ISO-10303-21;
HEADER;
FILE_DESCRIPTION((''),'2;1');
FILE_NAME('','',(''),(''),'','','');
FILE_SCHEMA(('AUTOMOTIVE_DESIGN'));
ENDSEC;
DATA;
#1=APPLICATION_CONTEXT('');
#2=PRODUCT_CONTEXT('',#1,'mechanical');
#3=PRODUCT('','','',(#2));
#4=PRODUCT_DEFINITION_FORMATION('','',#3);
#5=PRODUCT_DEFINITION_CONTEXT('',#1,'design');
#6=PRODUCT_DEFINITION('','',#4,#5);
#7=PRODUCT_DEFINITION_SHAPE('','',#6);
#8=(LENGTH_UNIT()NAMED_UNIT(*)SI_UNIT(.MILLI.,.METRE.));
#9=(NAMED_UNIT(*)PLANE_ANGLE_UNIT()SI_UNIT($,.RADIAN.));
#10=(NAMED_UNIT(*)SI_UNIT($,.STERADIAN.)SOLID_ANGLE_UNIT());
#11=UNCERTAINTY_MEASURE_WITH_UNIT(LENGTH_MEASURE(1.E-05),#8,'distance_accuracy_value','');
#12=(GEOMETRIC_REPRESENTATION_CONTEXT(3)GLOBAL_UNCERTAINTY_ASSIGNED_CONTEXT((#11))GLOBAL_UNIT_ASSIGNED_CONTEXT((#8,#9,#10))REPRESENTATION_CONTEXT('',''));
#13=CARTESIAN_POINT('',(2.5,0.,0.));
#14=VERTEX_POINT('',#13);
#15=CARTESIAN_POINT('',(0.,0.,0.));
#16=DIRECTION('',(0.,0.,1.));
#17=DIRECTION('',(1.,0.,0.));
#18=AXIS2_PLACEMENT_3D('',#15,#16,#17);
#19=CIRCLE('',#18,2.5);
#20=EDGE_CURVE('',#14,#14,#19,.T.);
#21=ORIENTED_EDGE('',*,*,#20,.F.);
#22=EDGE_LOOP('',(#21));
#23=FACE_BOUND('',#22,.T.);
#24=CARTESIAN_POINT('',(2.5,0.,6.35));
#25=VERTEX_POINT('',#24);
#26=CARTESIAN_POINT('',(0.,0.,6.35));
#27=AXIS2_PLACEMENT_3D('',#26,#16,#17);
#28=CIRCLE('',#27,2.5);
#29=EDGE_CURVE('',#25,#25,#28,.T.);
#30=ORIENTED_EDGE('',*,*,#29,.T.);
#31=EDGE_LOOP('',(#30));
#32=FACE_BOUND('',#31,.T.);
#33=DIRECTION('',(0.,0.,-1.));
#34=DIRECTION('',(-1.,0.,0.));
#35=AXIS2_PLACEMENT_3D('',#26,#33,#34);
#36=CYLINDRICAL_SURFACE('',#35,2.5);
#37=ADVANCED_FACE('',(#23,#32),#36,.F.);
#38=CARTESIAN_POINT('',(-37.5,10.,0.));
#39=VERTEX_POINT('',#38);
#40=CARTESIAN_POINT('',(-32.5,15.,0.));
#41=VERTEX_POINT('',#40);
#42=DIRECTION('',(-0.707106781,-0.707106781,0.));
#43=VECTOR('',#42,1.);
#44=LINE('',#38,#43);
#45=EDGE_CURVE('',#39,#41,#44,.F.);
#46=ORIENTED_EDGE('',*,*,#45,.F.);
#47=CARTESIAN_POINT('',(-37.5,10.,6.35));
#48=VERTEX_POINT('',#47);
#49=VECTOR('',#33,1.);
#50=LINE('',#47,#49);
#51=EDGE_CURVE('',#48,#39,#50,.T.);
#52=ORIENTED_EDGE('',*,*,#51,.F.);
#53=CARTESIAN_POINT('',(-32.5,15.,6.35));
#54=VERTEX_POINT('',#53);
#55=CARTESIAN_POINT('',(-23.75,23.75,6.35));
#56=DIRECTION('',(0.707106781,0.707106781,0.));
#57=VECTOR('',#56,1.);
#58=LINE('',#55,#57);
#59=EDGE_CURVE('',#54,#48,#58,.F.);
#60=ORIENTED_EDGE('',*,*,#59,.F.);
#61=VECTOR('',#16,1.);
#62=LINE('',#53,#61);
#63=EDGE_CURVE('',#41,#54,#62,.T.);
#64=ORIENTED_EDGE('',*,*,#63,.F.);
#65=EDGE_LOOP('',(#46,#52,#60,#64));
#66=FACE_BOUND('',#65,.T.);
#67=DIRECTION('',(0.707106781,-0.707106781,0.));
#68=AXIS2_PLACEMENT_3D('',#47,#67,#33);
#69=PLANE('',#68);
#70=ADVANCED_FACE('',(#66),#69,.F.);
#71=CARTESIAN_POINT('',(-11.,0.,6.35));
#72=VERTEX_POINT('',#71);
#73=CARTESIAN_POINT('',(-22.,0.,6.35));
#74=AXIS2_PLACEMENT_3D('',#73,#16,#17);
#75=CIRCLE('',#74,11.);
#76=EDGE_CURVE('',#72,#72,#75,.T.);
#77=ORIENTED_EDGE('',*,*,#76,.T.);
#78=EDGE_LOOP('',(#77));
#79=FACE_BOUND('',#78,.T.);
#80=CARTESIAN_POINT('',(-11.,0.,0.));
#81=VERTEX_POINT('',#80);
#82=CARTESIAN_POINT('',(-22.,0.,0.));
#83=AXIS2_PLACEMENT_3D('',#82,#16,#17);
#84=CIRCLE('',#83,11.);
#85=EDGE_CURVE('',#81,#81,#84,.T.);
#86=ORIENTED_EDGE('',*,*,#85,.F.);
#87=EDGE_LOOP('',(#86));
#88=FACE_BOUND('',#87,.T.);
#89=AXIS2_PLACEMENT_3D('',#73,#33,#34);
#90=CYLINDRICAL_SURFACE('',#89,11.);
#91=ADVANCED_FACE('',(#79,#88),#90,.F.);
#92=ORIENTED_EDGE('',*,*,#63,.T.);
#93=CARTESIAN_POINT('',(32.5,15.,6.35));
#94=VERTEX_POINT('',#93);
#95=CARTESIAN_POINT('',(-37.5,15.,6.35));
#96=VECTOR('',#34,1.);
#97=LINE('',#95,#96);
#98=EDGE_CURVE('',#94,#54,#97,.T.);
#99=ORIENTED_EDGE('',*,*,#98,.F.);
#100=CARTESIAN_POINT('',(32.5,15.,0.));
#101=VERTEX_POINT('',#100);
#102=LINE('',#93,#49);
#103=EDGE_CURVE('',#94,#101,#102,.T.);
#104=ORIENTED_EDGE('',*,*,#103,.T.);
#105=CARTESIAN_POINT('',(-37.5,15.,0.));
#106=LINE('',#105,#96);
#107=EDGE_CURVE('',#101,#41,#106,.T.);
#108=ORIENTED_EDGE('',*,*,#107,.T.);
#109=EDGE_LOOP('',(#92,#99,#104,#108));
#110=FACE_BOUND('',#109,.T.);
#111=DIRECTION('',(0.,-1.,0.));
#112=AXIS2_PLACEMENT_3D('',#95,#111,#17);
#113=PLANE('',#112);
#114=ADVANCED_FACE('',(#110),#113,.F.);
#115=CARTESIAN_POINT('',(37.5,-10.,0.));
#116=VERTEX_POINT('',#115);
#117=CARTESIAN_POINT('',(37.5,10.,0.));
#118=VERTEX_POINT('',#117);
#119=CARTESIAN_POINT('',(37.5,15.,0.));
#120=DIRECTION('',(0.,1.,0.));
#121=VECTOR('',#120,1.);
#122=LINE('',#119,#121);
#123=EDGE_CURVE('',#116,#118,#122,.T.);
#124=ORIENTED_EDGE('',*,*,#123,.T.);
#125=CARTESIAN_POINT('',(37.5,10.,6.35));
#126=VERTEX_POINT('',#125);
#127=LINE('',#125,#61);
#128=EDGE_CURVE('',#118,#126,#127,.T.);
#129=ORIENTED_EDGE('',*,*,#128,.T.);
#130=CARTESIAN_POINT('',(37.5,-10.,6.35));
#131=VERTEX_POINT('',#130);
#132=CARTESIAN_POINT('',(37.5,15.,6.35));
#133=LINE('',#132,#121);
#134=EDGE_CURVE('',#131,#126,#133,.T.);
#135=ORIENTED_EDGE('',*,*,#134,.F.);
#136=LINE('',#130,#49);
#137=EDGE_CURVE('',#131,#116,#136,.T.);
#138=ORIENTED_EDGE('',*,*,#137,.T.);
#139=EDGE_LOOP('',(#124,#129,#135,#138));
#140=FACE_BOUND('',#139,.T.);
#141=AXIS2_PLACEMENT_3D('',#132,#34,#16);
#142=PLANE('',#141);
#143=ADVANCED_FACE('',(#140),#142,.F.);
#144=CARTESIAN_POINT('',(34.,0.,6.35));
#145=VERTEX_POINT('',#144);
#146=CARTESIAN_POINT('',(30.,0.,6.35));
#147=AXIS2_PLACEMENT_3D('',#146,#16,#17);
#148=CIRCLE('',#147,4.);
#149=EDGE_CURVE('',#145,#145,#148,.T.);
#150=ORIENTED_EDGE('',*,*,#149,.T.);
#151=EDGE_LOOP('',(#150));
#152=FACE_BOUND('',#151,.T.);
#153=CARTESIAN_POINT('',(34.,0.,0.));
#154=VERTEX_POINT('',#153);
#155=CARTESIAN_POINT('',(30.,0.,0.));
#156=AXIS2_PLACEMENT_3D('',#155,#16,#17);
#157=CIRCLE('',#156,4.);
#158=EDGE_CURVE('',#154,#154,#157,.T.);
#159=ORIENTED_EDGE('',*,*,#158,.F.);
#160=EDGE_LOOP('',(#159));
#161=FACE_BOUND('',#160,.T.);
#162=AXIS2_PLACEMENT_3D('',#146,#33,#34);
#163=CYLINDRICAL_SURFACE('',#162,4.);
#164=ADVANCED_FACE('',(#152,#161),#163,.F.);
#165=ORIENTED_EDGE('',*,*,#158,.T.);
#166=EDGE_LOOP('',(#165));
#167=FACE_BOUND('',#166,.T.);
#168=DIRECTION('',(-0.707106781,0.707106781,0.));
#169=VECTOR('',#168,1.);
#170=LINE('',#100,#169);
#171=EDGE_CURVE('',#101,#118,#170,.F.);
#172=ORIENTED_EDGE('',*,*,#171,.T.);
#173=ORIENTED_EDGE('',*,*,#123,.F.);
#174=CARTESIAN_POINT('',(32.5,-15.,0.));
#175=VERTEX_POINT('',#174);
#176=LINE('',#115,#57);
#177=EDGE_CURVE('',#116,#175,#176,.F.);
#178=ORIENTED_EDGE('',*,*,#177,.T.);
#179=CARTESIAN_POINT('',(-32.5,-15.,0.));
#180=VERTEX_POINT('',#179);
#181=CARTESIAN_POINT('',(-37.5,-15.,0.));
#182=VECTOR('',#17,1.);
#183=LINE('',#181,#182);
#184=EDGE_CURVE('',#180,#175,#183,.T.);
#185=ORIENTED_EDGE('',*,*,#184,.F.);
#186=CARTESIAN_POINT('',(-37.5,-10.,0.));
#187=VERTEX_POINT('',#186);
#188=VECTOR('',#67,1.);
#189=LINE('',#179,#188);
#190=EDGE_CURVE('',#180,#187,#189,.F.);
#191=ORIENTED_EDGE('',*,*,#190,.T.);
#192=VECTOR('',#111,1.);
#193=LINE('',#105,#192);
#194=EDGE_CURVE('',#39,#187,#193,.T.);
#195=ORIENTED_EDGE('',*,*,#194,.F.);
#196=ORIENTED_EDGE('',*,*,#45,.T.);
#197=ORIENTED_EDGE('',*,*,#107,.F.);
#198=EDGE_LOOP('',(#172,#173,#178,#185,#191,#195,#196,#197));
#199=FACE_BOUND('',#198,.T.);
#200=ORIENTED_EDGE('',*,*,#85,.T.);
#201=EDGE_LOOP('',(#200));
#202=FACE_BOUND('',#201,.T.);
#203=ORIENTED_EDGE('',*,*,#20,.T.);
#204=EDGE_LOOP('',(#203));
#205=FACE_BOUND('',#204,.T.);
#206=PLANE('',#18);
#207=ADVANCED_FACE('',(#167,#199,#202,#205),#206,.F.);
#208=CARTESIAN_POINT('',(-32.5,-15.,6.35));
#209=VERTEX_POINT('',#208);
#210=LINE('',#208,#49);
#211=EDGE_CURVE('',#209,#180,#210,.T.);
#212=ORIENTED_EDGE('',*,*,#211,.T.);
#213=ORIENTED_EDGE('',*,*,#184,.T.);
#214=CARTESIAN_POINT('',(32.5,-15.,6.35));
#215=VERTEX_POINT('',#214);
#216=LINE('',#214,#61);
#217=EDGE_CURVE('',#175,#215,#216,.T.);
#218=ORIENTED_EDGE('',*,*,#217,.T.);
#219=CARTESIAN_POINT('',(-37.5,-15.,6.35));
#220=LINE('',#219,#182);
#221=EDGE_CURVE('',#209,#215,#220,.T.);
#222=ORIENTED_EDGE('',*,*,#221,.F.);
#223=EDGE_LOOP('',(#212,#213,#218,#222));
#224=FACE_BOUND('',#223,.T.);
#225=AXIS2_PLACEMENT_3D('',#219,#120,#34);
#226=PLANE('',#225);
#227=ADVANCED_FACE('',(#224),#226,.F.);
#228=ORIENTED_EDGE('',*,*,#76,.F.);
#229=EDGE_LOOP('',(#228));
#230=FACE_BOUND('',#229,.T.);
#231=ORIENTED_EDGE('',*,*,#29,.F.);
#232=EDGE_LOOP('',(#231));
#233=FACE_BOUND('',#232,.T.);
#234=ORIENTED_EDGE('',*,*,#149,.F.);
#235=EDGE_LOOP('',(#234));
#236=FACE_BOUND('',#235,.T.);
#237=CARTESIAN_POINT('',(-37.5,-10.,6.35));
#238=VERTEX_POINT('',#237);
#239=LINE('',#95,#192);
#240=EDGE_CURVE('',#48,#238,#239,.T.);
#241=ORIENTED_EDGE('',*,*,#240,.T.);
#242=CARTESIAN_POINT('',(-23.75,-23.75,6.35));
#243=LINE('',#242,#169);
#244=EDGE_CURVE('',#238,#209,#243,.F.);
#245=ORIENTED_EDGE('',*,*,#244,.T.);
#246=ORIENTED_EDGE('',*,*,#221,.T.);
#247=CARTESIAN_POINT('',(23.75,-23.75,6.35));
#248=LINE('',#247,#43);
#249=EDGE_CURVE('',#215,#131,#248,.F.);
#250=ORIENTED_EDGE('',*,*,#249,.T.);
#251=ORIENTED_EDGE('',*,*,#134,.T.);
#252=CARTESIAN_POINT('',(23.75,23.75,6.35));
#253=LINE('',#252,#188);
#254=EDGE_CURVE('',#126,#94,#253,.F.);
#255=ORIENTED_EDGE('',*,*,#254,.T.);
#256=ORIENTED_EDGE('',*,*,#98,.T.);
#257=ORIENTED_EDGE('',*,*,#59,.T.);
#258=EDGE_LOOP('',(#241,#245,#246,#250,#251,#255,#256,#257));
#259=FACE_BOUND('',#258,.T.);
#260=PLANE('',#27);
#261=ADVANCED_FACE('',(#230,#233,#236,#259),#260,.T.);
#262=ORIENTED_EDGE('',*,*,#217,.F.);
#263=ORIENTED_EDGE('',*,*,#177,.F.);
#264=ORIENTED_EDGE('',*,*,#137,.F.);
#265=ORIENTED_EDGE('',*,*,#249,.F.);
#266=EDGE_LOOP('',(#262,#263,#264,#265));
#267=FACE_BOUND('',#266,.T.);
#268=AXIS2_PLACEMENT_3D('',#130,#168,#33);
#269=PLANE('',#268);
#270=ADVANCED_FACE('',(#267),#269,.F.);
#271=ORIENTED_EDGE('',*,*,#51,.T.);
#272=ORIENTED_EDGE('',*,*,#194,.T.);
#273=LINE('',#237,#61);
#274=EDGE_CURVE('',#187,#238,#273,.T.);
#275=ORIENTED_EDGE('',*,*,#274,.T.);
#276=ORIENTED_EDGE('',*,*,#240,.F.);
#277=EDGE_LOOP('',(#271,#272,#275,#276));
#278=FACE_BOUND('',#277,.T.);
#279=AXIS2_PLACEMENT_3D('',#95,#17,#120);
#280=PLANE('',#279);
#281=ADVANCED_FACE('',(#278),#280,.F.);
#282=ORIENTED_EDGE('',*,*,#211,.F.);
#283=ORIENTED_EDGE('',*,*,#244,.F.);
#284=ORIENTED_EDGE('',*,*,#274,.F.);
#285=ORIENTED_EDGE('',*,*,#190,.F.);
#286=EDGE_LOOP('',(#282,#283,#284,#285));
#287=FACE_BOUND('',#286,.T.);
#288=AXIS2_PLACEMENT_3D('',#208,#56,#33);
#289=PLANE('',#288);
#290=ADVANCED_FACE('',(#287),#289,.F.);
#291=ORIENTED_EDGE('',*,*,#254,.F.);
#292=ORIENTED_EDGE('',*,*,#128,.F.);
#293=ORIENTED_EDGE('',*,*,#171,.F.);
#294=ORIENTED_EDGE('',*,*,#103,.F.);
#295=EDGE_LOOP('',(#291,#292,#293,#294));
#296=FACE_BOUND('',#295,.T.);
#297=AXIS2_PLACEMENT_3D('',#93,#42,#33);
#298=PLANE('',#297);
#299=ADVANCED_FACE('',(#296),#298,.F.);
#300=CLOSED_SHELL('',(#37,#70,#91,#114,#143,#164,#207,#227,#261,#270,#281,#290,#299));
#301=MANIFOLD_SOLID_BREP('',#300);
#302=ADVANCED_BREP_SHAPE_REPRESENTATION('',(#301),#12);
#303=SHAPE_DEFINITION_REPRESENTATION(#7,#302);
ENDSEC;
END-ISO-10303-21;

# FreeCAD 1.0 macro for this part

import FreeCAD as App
import Part
import Sketcher

V = App.Vector


def edges_at(feature, points):
    """Names of the edges that pass closest to the given points."""
    edges = feature.Shape.Edges
    near = lambda p: min(range(len(edges)), key=lambda i: edges[i].distToShape(Part.Vertex(*p))[0])
    return sorted({f"Edge{near(p) + 1}" for p in points})


def add_polygon(sketch, points):
    """Adds a closed chain of lines whose ends are joined by coincident constraints."""
    first, n = sketch.GeometryCount, len(points)
    for a, b in zip(points, points[1:] + points[:1]):
        sketch.addGeometry(Part.LineSegment(App.Vector(*a, 0), App.Vector(*b, 0)), False)
    for i in range(n):
        sketch.addConstraint(Sketcher.Constraint("Coincident", first + i, 2, first + (i + 1) % n, 1))

doc = App.newDocument("Part")
params = doc.addObject("Spreadsheet::Sheet", "Params")
for row, (alias, value) in enumerate([
    ("sketch1_diameter", "22 mm"),
    ("sketch1_diameter2", "5 mm"),
    ("sketch1_diameter3", "8 mm"),
    ("sketch1_width", "75 mm"),
    ("sketch1_height", "30 mm"),
    ("pad1_length", "6.35 mm"),
    ("chamfer_size", "5 mm"),
], start=1):
    params.set(f"A{row}", alias)
    params.set(f"B{row}", "=" + value)
    params.setAlias(f"B{row}", alias)

body = doc.addObject("PartDesign::Body", "Body")

sketch1 = body.newObject("Sketcher::SketchObject", "Sketch")
sketch1.AttachmentSupport = (doc.getObject("XY_Plane"), [""])
sketch1.MapMode = "FlatFace"
add_polygon(sketch1, [(-37.5, 15), (-37.5, -15), (37.5, -15), (37.5, 15)])
sketch1.addGeometry(Part.Circle(V(-22, 0, 0), V(0, 0, 1), 11), False)
sketch1.addGeometry(Part.Circle(V(0, 0, 0), V(0, 0, 1), 2.5), False)
sketch1.addGeometry(Part.Circle(V(30, 0, 0), V(0, 0, 1), 4), False)
sketch1.addConstraint(Sketcher.Constraint("Vertical", 0))
sketch1.addConstraint(Sketcher.Constraint("Horizontal", 1))
sketch1.addConstraint(Sketcher.Constraint("Vertical", 2))
sketch1.addConstraint(Sketcher.Constraint("Horizontal", 3))
sketch1.addConstraint(Sketcher.Constraint("Coincident", 5, 3, -1, 1))
sketch1.addConstraint(Sketcher.Constraint("Symmetric", 0, 2, 2, 2, -1, 1))
sketch1.addConstraint(Sketcher.Constraint("PointOnObject", 4, 3, -1))
sketch1.addConstraint(Sketcher.Constraint("PointOnObject", 6, 3, -1))
sketch1.addConstraint(Sketcher.Constraint("Diameter", 4, 22.0))
sketch1.addConstraint(Sketcher.Constraint("Diameter", 5, 5.0))
sketch1.addConstraint(Sketcher.Constraint("Diameter", 6, 8.0))
sketch1.addConstraint(Sketcher.Constraint("DistanceX", 1, 1, 1, 2, 75.0))
sketch1.addConstraint(Sketcher.Constraint("DistanceY", 0, 2, 0, 1, 30.0))
sketch1.addConstraint(Sketcher.Constraint("DistanceX", 4, 3, -1, 1, 22.0))
sketch1.addConstraint(Sketcher.Constraint("DistanceX", -1, 1, 6, 3, 30.0))
sketch1.setExpression("Constraints[12]", "Params.sketch1_diameter")
sketch1.setExpression("Constraints[13]", "Params.sketch1_diameter2")
sketch1.setExpression("Constraints[14]", "Params.sketch1_diameter3")
sketch1.setExpression("Constraints[15]", "Params.sketch1_width")
sketch1.setExpression("Constraints[16]", "Params.sketch1_height")
pad1 = body.newObject("PartDesign::Pad", "Pad")
pad1.Profile = sketch1
pad1.setExpression("Length", "Params.pad1_length")
doc.recompute()

chamfer = body.newObject("PartDesign::Chamfer", "Chamfer")
chamfer.Base = (pad1, edges_at(pad1, [
    (37.5, -15, 3.175),
    (-37.5, -15, 3.175),
    (-37.5, 15, 3.175),
    (37.5, 15, 3.175),
]))
chamfer.setExpression("Size", "Params.chamfer_size")

doc.recompute()
